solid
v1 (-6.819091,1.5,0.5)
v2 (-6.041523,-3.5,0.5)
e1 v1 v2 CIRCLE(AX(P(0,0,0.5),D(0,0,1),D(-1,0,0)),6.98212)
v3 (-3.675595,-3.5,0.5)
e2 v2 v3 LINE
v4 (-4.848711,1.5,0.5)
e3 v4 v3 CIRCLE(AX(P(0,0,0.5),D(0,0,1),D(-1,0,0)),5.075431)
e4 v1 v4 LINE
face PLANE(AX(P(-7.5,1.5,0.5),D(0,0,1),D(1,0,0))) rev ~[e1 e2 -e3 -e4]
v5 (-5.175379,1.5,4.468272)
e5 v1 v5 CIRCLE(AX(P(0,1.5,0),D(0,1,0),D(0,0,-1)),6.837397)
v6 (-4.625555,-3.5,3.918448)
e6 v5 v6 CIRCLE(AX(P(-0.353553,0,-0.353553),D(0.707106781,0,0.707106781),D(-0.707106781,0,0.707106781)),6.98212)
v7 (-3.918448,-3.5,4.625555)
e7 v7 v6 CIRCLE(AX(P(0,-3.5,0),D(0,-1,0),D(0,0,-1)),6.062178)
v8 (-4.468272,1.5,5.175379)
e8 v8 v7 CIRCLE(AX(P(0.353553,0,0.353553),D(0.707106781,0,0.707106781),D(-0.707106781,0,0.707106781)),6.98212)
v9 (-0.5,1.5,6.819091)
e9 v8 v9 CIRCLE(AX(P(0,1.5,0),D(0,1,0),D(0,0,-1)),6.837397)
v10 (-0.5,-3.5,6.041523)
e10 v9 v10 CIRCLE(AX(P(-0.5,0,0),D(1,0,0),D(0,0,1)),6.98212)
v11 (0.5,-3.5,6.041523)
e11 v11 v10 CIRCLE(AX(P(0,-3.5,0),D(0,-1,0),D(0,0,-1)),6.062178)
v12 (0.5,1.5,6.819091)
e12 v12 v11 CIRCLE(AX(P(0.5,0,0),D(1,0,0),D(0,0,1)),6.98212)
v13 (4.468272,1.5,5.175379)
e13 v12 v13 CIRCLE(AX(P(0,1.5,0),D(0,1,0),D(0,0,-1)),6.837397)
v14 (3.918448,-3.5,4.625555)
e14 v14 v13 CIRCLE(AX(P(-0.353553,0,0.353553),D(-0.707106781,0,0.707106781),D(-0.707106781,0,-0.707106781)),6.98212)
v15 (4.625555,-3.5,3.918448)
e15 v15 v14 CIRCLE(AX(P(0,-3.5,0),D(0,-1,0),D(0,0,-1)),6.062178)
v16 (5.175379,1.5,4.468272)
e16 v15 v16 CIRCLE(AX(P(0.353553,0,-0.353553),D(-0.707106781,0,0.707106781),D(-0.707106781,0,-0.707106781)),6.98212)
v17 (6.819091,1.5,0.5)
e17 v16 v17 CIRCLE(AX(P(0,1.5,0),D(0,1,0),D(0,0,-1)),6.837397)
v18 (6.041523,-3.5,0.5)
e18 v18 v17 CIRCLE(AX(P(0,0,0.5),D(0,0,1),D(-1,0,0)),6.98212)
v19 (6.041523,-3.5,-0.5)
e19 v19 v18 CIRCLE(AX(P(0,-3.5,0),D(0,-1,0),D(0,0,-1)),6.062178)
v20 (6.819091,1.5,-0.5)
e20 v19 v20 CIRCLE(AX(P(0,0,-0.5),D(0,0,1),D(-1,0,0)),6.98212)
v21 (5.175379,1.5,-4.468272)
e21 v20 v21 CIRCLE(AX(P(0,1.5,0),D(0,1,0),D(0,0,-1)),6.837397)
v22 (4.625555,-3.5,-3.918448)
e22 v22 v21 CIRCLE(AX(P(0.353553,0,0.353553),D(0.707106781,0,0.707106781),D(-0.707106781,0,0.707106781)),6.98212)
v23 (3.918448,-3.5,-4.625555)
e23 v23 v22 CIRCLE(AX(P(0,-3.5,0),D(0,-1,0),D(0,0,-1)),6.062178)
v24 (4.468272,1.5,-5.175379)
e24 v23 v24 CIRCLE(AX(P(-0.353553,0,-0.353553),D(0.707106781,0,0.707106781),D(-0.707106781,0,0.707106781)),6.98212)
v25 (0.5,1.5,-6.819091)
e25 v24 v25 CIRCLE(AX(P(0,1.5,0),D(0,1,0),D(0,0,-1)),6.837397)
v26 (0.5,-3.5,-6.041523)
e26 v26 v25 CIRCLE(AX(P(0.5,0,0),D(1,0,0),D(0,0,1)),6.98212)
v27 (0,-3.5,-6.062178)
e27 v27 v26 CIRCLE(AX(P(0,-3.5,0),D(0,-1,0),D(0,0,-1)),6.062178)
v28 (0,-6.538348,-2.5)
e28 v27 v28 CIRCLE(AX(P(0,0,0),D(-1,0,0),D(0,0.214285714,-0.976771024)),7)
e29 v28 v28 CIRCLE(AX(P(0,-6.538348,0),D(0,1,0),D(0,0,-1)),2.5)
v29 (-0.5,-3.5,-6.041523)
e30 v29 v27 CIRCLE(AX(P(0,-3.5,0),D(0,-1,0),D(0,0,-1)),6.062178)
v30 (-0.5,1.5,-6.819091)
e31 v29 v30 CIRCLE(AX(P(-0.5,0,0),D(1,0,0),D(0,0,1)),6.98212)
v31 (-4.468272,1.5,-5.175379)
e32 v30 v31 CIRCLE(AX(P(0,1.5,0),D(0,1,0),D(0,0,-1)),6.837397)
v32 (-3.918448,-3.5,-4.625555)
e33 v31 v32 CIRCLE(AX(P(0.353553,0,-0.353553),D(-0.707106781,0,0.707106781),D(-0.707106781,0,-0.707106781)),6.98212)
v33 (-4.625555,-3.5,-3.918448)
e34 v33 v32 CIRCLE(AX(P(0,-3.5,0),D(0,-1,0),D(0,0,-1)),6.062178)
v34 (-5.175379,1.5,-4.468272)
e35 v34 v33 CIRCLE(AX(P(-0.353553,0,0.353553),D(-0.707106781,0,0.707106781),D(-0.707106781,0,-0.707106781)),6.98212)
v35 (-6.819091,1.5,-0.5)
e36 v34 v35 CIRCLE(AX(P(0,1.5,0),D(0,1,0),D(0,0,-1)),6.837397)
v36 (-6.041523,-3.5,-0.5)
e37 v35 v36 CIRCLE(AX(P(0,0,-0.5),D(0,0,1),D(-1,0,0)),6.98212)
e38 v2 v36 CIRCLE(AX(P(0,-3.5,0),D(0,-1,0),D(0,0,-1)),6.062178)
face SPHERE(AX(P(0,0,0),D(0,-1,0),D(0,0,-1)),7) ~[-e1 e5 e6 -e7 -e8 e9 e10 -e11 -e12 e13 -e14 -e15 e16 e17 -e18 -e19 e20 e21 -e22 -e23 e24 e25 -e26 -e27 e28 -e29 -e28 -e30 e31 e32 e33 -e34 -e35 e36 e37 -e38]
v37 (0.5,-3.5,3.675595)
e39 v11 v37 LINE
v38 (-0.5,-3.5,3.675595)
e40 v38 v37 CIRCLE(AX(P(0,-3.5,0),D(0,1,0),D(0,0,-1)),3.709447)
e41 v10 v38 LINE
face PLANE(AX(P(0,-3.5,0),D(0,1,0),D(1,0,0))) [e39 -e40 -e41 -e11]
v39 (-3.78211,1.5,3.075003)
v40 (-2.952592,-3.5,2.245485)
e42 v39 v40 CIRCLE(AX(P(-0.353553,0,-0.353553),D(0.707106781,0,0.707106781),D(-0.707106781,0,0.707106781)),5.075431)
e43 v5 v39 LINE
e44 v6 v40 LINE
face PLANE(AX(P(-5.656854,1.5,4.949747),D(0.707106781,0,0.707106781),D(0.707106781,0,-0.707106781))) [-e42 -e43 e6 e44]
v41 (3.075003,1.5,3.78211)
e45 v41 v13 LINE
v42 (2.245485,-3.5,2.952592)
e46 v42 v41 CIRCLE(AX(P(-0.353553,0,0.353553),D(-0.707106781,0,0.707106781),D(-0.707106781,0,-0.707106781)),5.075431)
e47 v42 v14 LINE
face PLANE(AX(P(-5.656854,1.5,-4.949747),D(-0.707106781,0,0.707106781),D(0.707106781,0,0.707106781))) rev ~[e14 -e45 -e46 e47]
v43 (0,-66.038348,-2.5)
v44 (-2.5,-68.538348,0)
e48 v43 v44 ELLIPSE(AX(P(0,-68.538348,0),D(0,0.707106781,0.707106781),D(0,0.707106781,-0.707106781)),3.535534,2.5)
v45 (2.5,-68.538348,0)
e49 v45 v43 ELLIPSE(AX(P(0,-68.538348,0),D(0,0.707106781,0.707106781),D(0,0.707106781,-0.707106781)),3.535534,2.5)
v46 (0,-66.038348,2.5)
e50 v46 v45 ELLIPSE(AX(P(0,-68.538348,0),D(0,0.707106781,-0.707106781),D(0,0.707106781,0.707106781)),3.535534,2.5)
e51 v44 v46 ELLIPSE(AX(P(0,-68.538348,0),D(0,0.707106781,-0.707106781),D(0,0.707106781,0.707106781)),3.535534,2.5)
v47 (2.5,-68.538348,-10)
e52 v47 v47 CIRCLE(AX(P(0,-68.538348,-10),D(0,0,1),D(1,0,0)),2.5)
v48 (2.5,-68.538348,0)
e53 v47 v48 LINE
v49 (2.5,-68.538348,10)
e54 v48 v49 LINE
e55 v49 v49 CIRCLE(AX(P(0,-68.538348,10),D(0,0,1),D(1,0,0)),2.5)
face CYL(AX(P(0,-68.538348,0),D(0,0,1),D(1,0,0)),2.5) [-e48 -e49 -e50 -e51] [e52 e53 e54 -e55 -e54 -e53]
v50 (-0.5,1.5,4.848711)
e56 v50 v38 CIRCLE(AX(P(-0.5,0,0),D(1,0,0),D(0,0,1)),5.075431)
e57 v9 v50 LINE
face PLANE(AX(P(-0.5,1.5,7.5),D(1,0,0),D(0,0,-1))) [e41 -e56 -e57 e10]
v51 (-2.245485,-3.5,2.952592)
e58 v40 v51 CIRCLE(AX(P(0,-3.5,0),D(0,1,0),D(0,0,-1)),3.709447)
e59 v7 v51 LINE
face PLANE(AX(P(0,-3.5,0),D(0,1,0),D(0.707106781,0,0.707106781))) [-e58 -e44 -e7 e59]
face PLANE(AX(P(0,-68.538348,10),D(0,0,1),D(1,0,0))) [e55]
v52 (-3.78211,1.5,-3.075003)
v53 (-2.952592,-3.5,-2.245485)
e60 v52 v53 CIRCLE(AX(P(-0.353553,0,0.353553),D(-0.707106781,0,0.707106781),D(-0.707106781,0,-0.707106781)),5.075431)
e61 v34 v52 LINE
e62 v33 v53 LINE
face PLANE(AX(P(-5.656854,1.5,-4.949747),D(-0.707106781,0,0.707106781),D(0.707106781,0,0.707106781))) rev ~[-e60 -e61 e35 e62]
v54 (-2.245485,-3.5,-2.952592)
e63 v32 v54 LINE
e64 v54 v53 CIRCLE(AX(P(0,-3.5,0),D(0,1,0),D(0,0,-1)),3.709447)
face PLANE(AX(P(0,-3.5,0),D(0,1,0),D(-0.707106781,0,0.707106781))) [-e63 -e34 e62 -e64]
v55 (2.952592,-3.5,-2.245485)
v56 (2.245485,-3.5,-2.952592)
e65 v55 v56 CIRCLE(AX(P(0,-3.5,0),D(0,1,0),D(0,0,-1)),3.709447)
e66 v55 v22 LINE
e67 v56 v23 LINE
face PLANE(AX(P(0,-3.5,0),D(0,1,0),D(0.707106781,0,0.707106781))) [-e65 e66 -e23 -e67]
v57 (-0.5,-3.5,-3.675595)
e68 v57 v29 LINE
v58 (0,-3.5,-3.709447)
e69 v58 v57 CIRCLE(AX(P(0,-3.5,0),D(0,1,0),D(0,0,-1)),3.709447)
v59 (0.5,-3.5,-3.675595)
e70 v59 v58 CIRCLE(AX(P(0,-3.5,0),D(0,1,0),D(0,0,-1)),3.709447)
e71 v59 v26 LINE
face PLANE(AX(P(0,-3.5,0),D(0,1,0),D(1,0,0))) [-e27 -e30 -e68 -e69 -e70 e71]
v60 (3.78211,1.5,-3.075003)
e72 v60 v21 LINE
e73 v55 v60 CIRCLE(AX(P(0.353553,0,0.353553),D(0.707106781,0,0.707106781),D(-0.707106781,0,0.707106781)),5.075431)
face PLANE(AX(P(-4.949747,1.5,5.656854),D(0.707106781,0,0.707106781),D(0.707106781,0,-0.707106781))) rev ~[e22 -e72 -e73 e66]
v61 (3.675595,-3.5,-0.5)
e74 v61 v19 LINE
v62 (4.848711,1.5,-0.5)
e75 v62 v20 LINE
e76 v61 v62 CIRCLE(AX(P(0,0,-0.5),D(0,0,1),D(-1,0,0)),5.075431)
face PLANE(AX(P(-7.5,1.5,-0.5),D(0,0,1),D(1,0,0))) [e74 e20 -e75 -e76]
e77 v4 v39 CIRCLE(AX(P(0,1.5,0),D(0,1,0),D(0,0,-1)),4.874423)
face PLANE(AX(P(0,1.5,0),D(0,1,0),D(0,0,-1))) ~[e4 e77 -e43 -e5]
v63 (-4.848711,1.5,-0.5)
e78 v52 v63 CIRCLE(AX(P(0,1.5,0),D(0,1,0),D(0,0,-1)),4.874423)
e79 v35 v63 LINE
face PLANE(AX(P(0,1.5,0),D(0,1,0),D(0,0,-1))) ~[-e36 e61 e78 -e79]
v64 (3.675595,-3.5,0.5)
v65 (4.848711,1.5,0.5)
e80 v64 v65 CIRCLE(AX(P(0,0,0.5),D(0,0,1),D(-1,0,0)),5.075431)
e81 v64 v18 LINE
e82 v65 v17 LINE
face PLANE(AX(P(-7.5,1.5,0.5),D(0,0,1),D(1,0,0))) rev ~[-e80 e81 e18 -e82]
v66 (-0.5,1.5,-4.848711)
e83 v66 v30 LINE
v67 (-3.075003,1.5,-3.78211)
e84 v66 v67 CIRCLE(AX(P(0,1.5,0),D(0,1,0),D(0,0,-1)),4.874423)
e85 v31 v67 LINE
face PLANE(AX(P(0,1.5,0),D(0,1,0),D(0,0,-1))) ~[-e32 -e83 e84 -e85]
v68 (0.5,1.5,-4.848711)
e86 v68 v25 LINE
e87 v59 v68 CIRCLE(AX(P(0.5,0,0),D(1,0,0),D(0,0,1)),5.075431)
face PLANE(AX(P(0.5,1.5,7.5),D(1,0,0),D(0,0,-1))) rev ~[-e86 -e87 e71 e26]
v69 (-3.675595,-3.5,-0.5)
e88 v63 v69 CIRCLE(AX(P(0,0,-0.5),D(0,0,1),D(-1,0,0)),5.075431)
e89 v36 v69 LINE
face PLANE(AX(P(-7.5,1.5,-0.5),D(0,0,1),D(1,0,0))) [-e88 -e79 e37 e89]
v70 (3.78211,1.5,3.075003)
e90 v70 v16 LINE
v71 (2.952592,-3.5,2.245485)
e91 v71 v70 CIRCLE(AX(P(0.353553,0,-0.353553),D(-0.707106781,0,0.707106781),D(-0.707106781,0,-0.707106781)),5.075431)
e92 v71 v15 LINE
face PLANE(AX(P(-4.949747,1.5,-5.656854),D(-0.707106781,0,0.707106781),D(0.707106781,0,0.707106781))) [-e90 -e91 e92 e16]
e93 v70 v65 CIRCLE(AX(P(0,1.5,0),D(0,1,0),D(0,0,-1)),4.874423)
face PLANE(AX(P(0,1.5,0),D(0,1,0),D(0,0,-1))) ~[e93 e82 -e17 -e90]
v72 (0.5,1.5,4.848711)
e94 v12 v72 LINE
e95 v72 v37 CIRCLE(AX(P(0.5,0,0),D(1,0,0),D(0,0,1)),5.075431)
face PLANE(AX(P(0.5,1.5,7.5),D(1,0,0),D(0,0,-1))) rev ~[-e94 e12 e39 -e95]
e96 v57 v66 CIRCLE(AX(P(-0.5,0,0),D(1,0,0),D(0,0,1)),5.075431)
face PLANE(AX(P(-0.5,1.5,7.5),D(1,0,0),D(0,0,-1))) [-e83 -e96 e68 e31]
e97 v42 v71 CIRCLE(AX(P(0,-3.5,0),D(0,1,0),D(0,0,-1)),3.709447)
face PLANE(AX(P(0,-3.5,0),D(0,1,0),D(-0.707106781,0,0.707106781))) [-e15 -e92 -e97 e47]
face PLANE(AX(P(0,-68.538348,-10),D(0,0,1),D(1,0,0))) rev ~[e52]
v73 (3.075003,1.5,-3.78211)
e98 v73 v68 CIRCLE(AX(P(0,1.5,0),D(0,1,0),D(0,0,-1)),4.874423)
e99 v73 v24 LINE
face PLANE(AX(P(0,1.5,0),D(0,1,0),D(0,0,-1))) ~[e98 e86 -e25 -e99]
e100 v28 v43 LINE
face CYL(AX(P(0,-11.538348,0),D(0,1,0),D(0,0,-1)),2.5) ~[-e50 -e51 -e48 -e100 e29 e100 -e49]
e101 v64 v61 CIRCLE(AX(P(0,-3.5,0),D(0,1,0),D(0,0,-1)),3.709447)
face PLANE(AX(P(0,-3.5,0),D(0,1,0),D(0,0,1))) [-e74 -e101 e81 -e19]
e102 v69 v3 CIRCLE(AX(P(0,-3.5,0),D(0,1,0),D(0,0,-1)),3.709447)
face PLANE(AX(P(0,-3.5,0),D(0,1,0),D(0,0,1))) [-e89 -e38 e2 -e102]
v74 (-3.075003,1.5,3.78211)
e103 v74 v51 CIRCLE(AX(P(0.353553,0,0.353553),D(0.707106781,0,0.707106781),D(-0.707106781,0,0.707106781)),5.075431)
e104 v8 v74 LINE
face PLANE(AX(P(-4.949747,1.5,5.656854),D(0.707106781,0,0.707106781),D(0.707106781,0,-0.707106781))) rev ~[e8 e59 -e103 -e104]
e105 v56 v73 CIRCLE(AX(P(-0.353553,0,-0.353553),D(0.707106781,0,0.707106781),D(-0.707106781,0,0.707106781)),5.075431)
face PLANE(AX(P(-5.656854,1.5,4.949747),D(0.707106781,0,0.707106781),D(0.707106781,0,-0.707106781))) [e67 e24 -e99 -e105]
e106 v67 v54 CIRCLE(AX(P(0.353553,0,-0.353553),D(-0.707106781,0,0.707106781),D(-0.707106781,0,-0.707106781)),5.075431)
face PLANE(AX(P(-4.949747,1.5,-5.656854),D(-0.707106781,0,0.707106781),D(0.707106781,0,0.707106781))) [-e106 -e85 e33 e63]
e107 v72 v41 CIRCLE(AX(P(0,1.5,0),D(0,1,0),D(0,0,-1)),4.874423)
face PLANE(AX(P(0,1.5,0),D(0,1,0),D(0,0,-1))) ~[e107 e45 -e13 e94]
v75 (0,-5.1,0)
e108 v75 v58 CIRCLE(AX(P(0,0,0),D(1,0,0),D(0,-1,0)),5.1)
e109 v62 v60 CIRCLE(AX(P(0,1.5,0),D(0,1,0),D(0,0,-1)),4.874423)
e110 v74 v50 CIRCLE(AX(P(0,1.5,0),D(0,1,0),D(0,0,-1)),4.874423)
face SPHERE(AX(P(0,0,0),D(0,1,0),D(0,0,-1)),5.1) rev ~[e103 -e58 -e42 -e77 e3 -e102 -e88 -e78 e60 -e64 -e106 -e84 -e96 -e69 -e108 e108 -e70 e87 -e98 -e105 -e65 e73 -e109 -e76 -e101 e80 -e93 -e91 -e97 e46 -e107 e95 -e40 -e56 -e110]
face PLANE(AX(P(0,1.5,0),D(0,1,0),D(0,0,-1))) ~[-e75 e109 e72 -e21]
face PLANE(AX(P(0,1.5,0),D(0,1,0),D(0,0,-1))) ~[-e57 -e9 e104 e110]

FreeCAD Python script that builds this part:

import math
import FreeCAD as App
import Part
import Sketcher
from FreeCAD import Vector

doc = App.newDocument("Part")
params = doc.addObject("Spreadsheet::Sheet", "Params")
for row, (alias, value) in enumerate([
    ("sketch1_radius", "7 mm"),
    ("sketch1_radius2", "5.1 mm"),
    ("sketch1_height", "5 mm"),
    ("sketch1_width", "2.5 mm"),
    ("revolution_angle", "360 deg"),
    ("sketch2_width", "1 mm"),
    ("sketch2_height", "15 mm"),
    ("pocket1_length", "5 mm"),
    ("sketch3_diameter", "5 mm"),
    ("pad1_length", "57 mm"),
    ("sketch4_diameter", "5 mm"),
    ("pad2_length", "20 mm"),
], start=1):
    params.set(f"A{row}", alias)
    params.set(f"B{row}", "=" + value)
    params.setAlias(f"B{row}", alias)

body = doc.addObject("PartDesign::Body", "Body")

sketch1 = body.newObject("Sketcher::SketchObject", "Sketch")
sketch1.AttachmentSupport = (doc.getObject("XY_Plane"), [""])
sketch1.MapMode = "FlatFace"
sketch1.addGeometry(Part.LineSegment(Vector(-4.9, 1.5, 0), Vector(-6.8, 1.5, 0)), False)
sketch1.addGeometry(Part.ArcOfCircle(Part.Circle(Vector(0, 0, 0), Vector(0, 0, 1), 7), math.radians(168), math.radians(249)), False)
sketch1.addGeometry(Part.LineSegment(Vector(-2.5, -6.5, 0), Vector(-2.5, -11.5, 0)), False)
sketch1.addGeometry(Part.LineSegment(Vector(-2.5, -11.5, 0), Vector(0, -11.5, 0)), False)
sketch1.addGeometry(Part.LineSegment(Vector(0, -11.5, 0), Vector(0, -5.1, 0)), False)
sketch1.addGeometry(Part.ArcOfCircle(Part.Circle(Vector(0, 0, 0), Vector(0, 0, 1), 5.1), math.radians(163), math.radians(270)), False)
sketch1.addConstraint(Sketcher.Constraint("Coincident", 0, 2, 1, 1))
sketch1.addConstraint(Sketcher.Constraint("Coincident", 1, 2, 2, 1))
sketch1.addConstraint(Sketcher.Constraint("Coincident", 2, 2, 3, 1))
sketch1.addConstraint(Sketcher.Constraint("Coincident", 3, 2, 4, 1))
sketch1.addConstraint(Sketcher.Constraint("Coincident", 4, 2, 5, 2))
sketch1.addConstraint(Sketcher.Constraint("Coincident", 5, 1, 0, 1))
sketch1.addConstraint(Sketcher.Constraint("Horizontal", 0))
sketch1.addConstraint(Sketcher.Constraint("Vertical", 2))
sketch1.addConstraint(Sketcher.Constraint("Horizontal", 3))
sketch1.addConstraint(Sketcher.Constraint("Vertical", 4))
sketch1.addConstraint(Sketcher.Constraint("Coincident", 1, 3, -1, 1))
sketch1.addConstraint(Sketcher.Constraint("Coincident", 5, 3, -1, 1))
sketch1.addConstraint(Sketcher.Constraint("PointOnObject", 3, 2, -2))
sketch1.addConstraint(Sketcher.Constraint("Radius", 1, 7.0))
sketch1.addConstraint(Sketcher.Constraint("Radius", 5, 5.1))
sketch1.addConstraint(Sketcher.Constraint("DistanceY", 2, 2, 2, 1, 5.0))
sketch1.addConstraint(Sketcher.Constraint("DistanceX", 3, 1, 3, 2, 2.5))
sketch1.addConstraint(Sketcher.Constraint("DistanceY", -1, 1, 0, 2, 1.5))
sketch1.setExpression("Constraints[13]", "Params.sketch1_radius")
sketch1.setExpression("Constraints[14]", "Params.sketch1_radius2")
sketch1.setExpression("Constraints[15]", "Params.sketch1_height")
sketch1.setExpression("Constraints[16]", "Params.sketch1_width")
revolution = body.newObject("PartDesign::Revolution", "Revolution")
revolution.Profile = sketch1
revolution.ReferenceAxis = (sketch1, ["V_Axis"])
revolution.setExpression("Angle", "Params.revolution_angle")

sketch2 = body.newObject("Sketcher::SketchObject", "Sketch001")
sketch2.AttachmentSupport = (doc.getObject("XZ_Plane"), [""])
sketch2.MapMode = "FlatFace"
sketch2.AttachmentOffset = App.Placement(Vector(0, 0, -1.5), App.Rotation())
sketch2.addGeometry(Part.LineSegment(Vector(-0.5, -7.5, 0), Vector(-0.5, 7.5, 0)), False)
sketch2.addGeometry(Part.LineSegment(Vector(-0.5, 7.5, 0), Vector(0.5, 7.5, 0)), False)
sketch2.addGeometry(Part.LineSegment(Vector(0.5, 7.5, 0), Vector(0.5, -7.5, 0)), False)
sketch2.addGeometry(Part.LineSegment(Vector(0.5, -7.5, 0), Vector(-0.5, -7.5, 0)), False)
sketch2.addConstraint(Sketcher.Constraint("Coincident", 0, 2, 1, 1))
sketch2.addConstraint(Sketcher.Constraint("Coincident", 1, 2, 2, 1))
sketch2.addConstraint(Sketcher.Constraint("Coincident", 2, 2, 3, 1))
sketch2.addConstraint(Sketcher.Constraint("Coincident", 3, 2, 0, 1))
sketch2.addConstraint(Sketcher.Constraint("Vertical", 0))
sketch2.addConstraint(Sketcher.Constraint("Horizontal", 1))
sketch2.addConstraint(Sketcher.Constraint("Vertical", 2))
sketch2.addConstraint(Sketcher.Constraint("Horizontal", 3))
sketch2.addConstraint(Sketcher.Constraint("Symmetric", 0, 2, 2, 2, -1, 1))
sketch2.addConstraint(Sketcher.Constraint("DistanceX", 1, 1, 1, 2, 1.0))
sketch2.addConstraint(Sketcher.Constraint("DistanceY", 0, 1, 0, 2, 15.0))
sketch2.setExpression("Constraints[9]", "Params.sketch2_width")
sketch2.setExpression("Constraints[10]", "Params.sketch2_height")
pocket1 = body.newObject("PartDesign::Pocket", "Pocket")
pocket1.Profile = sketch2
pocket1.setExpression("Length", "Params.pocket1_length")
pocket1.Reversed = True
doc.recompute()

polarpattern = body.newObject("PartDesign::PolarPattern", "PolarPattern")
polarpattern.Originals = [pocket1]
polarpattern.Axis = (doc.getObject("Y_Axis"), [""])
polarpattern.Angle = 135
polarpattern.Occurrences = 4
polarpattern.Reversed = True
body.Tip = polarpattern

sketch3 = body.newObject("Sketcher::SketchObject", "Sketch002")
sketch3.AttachmentSupport = (doc.getObject("XZ_Plane"), [""])
sketch3.MapMode = "FlatFace"
sketch3.AttachmentOffset = App.Placement(Vector(0, 0, 11.538348), App.Rotation())
sketch3.addGeometry(Part.Circle(Vector(0, 0, 0), Vector(0, 0, 1), 2.5), False)
sketch3.addConstraint(Sketcher.Constraint("Coincident", 0, 3, -1, 1))
sketch3.addConstraint(Sketcher.Constraint("Diameter", 0, 5.0))
sketch3.setExpression("Constraints[1]", "Params.sketch3_diameter")
pad1 = body.newObject("PartDesign::Pad", "Pad")
pad1.Profile = sketch3
pad1.setExpression("Length", "Params.pad1_length")

sketch4 = body.newObject("Sketcher::SketchObject", "Sketch003")
sketch4.AttachmentSupport = (doc.getObject("XY_Plane"), [""])
sketch4.MapMode = "FlatFace"
sketch4.addGeometry(Part.Circle(Vector(0, -68.5, 0), Vector(0, 0, 1), 2.5), False)
sketch4.addConstraint(Sketcher.Constraint("PointOnObject", 0, 3, -2))
sketch4.addConstraint(Sketcher.Constraint("Diameter", 0, 5.0))
sketch4.addConstraint(Sketcher.Constraint("DistanceY", 0, 3, -1, 1, 68.538348))
sketch4.setExpression("Constraints[1]", "Params.sketch4_diameter")
pad2 = body.newObject("PartDesign::Pad", "Pad001")
pad2.Profile = sketch4
pad2.setExpression("Length", "Params.pad2_length")
pad2.Midplane = True

doc.recompute()
